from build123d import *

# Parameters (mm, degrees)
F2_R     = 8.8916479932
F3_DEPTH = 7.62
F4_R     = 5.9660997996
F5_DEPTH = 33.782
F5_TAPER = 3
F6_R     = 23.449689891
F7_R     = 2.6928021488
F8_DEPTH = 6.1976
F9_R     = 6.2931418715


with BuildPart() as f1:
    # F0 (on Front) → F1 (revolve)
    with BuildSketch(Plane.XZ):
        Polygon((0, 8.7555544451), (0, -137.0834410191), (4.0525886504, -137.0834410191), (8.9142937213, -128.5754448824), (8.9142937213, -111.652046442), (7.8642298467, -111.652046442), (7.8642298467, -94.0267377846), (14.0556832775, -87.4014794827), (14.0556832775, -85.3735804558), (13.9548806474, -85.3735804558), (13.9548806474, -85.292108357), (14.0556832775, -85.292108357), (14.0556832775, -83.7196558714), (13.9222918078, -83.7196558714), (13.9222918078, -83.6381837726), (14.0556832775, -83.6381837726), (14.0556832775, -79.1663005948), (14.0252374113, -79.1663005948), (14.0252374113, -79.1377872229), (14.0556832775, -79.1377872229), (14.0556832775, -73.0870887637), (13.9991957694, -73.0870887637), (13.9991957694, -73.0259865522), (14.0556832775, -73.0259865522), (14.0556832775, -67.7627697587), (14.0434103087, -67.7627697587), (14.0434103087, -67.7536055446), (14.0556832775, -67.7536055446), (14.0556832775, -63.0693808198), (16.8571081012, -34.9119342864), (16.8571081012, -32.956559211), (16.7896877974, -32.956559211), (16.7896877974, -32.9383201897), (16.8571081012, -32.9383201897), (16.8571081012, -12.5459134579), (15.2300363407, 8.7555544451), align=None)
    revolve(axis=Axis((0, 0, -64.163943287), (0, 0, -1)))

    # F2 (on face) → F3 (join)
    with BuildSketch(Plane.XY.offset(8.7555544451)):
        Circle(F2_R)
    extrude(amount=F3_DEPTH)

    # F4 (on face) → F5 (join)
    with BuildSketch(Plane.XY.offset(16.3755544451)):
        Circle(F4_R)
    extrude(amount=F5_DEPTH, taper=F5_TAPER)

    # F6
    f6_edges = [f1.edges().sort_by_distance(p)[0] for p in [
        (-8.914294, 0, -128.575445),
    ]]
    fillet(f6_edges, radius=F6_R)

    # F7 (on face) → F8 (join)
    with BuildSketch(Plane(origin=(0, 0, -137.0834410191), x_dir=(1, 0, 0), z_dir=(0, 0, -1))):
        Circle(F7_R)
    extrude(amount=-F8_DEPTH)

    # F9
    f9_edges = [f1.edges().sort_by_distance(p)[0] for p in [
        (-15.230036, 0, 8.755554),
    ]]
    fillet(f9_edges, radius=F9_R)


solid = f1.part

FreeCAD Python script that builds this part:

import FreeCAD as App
import Part
import Sketcher
from FreeCAD import Vector
Q = App.Units.Quantity


def edges_at(feature, points):
    """Names of the edges that pass closest to the given points."""
    edges = feature.Shape.Edges
    near = lambda p: min(range(len(edges)), key=lambda i: edges[i].distToShape(Part.Vertex(*p))[0])
    return sorted({f"Edge{near(p) + 1}" for p in points})

doc = App.newDocument("Part")
body = doc.addObject("PartDesign::Body", "Body")

# Sketch on XZ plane
sketch1 = body.newObject("Sketcher::SketchObject", "Sketch")
sketch1.AttachmentSupport = (doc.getObject("XZ_Plane"), [""])
sketch1.MapMode = "FlatFace"
sketch1.addGeometry([
    Part.LineSegment(Vector(0, 8.755554, 0), Vector(0, -137.083441, 0)),  # 0
    Part.LineSegment(Vector(0, -137.083441, 0), Vector(4.052589, -137.083441, 0)),  # 1
    Part.LineSegment(Vector(4.052589, -137.083441, 0), Vector(8.914294, -128.575445, 0)),  # 2
    Part.LineSegment(Vector(8.914294, -128.575445, 0), Vector(8.914294, -111.652046, 0)),  # 3
    Part.LineSegment(Vector(8.914294, -111.652046, 0), Vector(7.86423, -111.652046, 0)),  # 4
    Part.LineSegment(Vector(7.86423, -111.652046, 0), Vector(7.86423, -94.026738, 0)),  # 5
    Part.LineSegment(Vector(7.86423, -94.026738, 0), Vector(14.055683, -87.401479, 0)),  # 6
    Part.LineSegment(Vector(14.055683, -87.401479, 0), Vector(14.055683, -85.37358, 0)),  # 7
    Part.LineSegment(Vector(14.055683, -85.37358, 0), Vector(13.954881, -85.37358, 0)),  # 8
    Part.LineSegment(Vector(13.954881, -85.37358, 0), Vector(13.954881, -85.292108, 0)),  # 9
    Part.LineSegment(Vector(13.954881, -85.292108, 0), Vector(14.055683, -85.292108, 0)),  # 10
    Part.LineSegment(Vector(14.055683, -85.292108, 0), Vector(14.055683, -83.719656, 0)),  # 11
    Part.LineSegment(Vector(14.055683, -83.719656, 0), Vector(13.922292, -83.719656, 0)),  # 12
    Part.LineSegment(Vector(13.922292, -83.719656, 0), Vector(13.922292, -83.638184, 0)),  # 13
    Part.LineSegment(Vector(13.922292, -83.638184, 0), Vector(14.055683, -83.638184, 0)),  # 14
    Part.LineSegment(Vector(14.055683, -83.638184, 0), Vector(14.055683, -79.166301, 0)),  # 15
    Part.LineSegment(Vector(14.055683, -79.166301, 0), Vector(14.025237, -79.166301, 0)),  # 16
    Part.LineSegment(Vector(14.025237, -79.166301, 0), Vector(14.025237, -79.137787, 0)),  # 17
    Part.LineSegment(Vector(14.025237, -79.137787, 0), Vector(14.055683, -79.137787, 0)),  # 18
    Part.LineSegment(Vector(14.055683, -79.137787, 0), Vector(14.055683, -73.087089, 0)),  # 19
    Part.LineSegment(Vector(14.055683, -73.087089, 0), Vector(13.999196, -73.087089, 0)),  # 20
    Part.LineSegment(Vector(13.999196, -73.087089, 0), Vector(13.999196, -73.025987, 0)),  # 21
    Part.LineSegment(Vector(13.999196, -73.025987, 0), Vector(14.055683, -73.025987, 0)),  # 22
    Part.LineSegment(Vector(14.055683, -73.025987, 0), Vector(14.055683, -67.76277, 0)),  # 23
    Part.LineSegment(Vector(14.055683, -67.76277, 0), Vector(14.04341, -67.76277, 0)),  # 24
    Part.LineSegment(Vector(14.04341, -67.76277, 0), Vector(14.04341, -67.753606, 0)),  # 25
    Part.LineSegment(Vector(14.04341, -67.753606, 0), Vector(14.055683, -67.753606, 0)),  # 26
    Part.LineSegment(Vector(14.055683, -67.753606, 0), Vector(14.055683, -63.069381, 0)),  # 27
    Part.LineSegment(Vector(14.055683, -63.069381, 0), Vector(16.857108, -34.911934, 0)),  # 28
    Part.LineSegment(Vector(16.857108, -34.911934, 0), Vector(16.857108, -32.956559, 0)),  # 29
    Part.LineSegment(Vector(16.857108, -32.956559, 0), Vector(16.789688, -32.956559, 0)),  # 30
    Part.LineSegment(Vector(16.789688, -32.956559, 0), Vector(16.789688, -32.93832, 0)),  # 31
    Part.LineSegment(Vector(16.789688, -32.93832, 0), Vector(16.857108, -32.93832, 0)),  # 32
    Part.LineSegment(Vector(16.857108, -32.93832, 0), Vector(16.857108, -12.545913, 0)),  # 33
    Part.LineSegment(Vector(16.857108, -12.545913, 0), Vector(15.230036, 8.755554, 0)),  # 34
    Part.LineSegment(Vector(15.230036, 8.755554, 0), Vector(0, 8.755554, 0)),  # 35
], False)
sketch1.addConstraint([
    Sketcher.Constraint("Coincident", 0, 2, 1, 1),
    Sketcher.Constraint("Coincident", 1, 2, 2, 1),
    Sketcher.Constraint("Coincident", 2, 2, 3, 1),
    Sketcher.Constraint("Coincident", 3, 2, 4, 1),
    Sketcher.Constraint("Coincident", 4, 2, 5, 1),
    Sketcher.Constraint("Coincident", 5, 2, 6, 1),
    Sketcher.Constraint("Coincident", 6, 2, 7, 1),
    Sketcher.Constraint("Coincident", 7, 2, 8, 1),
    Sketcher.Constraint("Coincident", 8, 2, 9, 1),
    Sketcher.Constraint("Coincident", 9, 2, 10, 1),
    Sketcher.Constraint("Coincident", 10, 2, 11, 1),
    Sketcher.Constraint("Coincident", 11, 2, 12, 1),
    Sketcher.Constraint("Coincident", 12, 2, 13, 1),
    Sketcher.Constraint("Coincident", 13, 2, 14, 1),
    Sketcher.Constraint("Coincident", 14, 2, 15, 1),
    Sketcher.Constraint("Coincident", 15, 2, 16, 1),
    Sketcher.Constraint("Coincident", 16, 2, 17, 1),
    Sketcher.Constraint("Coincident", 17, 2, 18, 1),
    Sketcher.Constraint("Coincident", 18, 2, 19, 1),
    Sketcher.Constraint("Coincident", 19, 2, 20, 1),
    Sketcher.Constraint("Coincident", 20, 2, 21, 1),
    Sketcher.Constraint("Coincident", 21, 2, 22, 1),
    Sketcher.Constraint("Coincident", 22, 2, 23, 1),
    Sketcher.Constraint("Coincident", 23, 2, 24, 1),
    Sketcher.Constraint("Coincident", 24, 2, 25, 1),
    Sketcher.Constraint("Coincident", 25, 2, 26, 1),
    Sketcher.Constraint("Coincident", 26, 2, 27, 1),
    Sketcher.Constraint("Coincident", 27, 2, 28, 1),
    Sketcher.Constraint("Coincident", 28, 2, 29, 1),
    Sketcher.Constraint("Coincident", 29, 2, 30, 1),
    Sketcher.Constraint("Coincident", 30, 2, 31, 1),
    Sketcher.Constraint("Coincident", 31, 2, 32, 1),
    Sketcher.Constraint("Coincident", 32, 2, 33, 1),
    Sketcher.Constraint("Coincident", 33, 2, 34, 1),
    Sketcher.Constraint("Coincident", 34, 2, 35, 1),
    Sketcher.Constraint("Coincident", 35, 2, 0, 1),
    Sketcher.Constraint("Vertical", 0),
    Sketcher.Constraint("Horizontal", 1),
    Sketcher.Constraint("Vertical", 3),
    Sketcher.Constraint("Horizontal", 4),
    Sketcher.Constraint("Vertical", 5),
    Sketcher.Constraint("Vertical", 7),
    Sketcher.Constraint("Horizontal", 8),
    Sketcher.Constraint("Vertical", 9),
    Sketcher.Constraint("Horizontal", 10),
    Sketcher.Constraint("Vertical", 11),
    Sketcher.Constraint("Horizontal", 12),
    Sketcher.Constraint("Vertical", 13),
    Sketcher.Constraint("Horizontal", 14),
    Sketcher.Constraint("Vertical", 15),
    Sketcher.Constraint("Horizontal", 16),
    Sketcher.Constraint("Vertical", 17),
    Sketcher.Constraint("Horizontal", 18),
    Sketcher.Constraint("Vertical", 19),
    Sketcher.Constraint("Horizontal", 20),
    Sketcher.Constraint("Vertical", 21),
    Sketcher.Constraint("Horizontal", 22),
    Sketcher.Constraint("Vertical", 23),
    Sketcher.Constraint("Horizontal", 24),
    Sketcher.Constraint("Vertical", 25),
    Sketcher.Constraint("Horizontal", 26),
    Sketcher.Constraint("Vertical", 27),
    Sketcher.Constraint("Vertical", 29),
    Sketcher.Constraint("Horizontal", 30),
    Sketcher.Constraint("Vertical", 31),
    Sketcher.Constraint("Horizontal", 32),
    Sketcher.Constraint("Vertical", 33),
    Sketcher.Constraint("Horizontal", 35),
    Sketcher.Constraint("PointOnObject", 0, 2, -2),
    Sketcher.Constraint("Vertical", 7, 2, 10, 2),
    Sketcher.Constraint("Vertical", 11, 2, 14, 2),
    Sketcher.Constraint("Vertical", 15, 2, 18, 2),
    Sketcher.Constraint("Vertical", 19, 2, 22, 2),
    Sketcher.Constraint("Vertical", 23, 2, 26, 2),
    Sketcher.Constraint("Vertical", 29, 2, 32, 2),
    Sketcher.Constraint("Equal", 9, 13),
    Sketcher.Constraint("DistanceY", 3, 1, 3, 2, 16.923398),
    Sketcher.Constraint("DistanceY", 7, 1, 7, 2, 2.027899),
    Sketcher.Constraint("DistanceY", 19, 1, 19, 2, 6.050698),
    Sketcher.Constraint("DistanceX", 1, 1, 1, 2, 4.052589),
    Sketcher.Constraint("DistanceX", 12, 2, 12, 1, 0.133391),
    Sketcher.Constraint("DistanceX", 30, 2, 30, 1, 0.06742),
    Sketcher.Constraint("DistanceY", 5, 1, 5, 2, 17.625309),
    Sketcher.Constraint("DistanceY", 31, 1, 31, 2, 0.018239),
    Sketcher.Constraint("DistanceY", 15, 2, -1, 1, 79.166301),
    Sketcher.Constraint("DistanceY", 17, 2, 21, 2, 6.111801),
    Sketcher.Constraint("Distance", 2, 9.79909),
    Sketcher.Constraint("DistanceX", 4, 2, 4, 1, 1.050064),
    Sketcher.Constraint("DistanceX", 8, 2, 8, 1, 0.100803),
    Sketcher.Constraint("DistanceX", 16, 2, 16, 1, 0.030446),
    Sketcher.Constraint("DistanceX", 20, 2, 20, 1, 0.056488),
    Sketcher.Constraint("DistanceX", 24, 2, 24, 1, 0.012273),
    Sketcher.Constraint("DistanceX", 35, 2, 35, 1, 15.230036),
    Sketcher.Constraint("DistanceY", 0, 2, 0, 1, 145.838995),
    Sketcher.Constraint("DistanceY", 9, 1, 9, 2, 0.081472),
    Sketcher.Constraint("DistanceY", 11, 1, 11, 2, 1.572452),
    Sketcher.Constraint("DistanceY", 15, 1, 15, 2, 4.471883),
    Sketcher.Constraint("DistanceY", 17, 1, 17, 2, 0.028513),
    Sketcher.Constraint("DistanceY", 23, 1, 23, 2, 5.263217),
    Sketcher.Constraint("DistanceY", 25, 1, 25, 2, 0.009164),
    Sketcher.Constraint("DistanceY", 27, 1, 27, 2, 4.684225),
    Sketcher.Constraint("DistanceY", 29, 1, 29, 2, 1.955375),
    Sketcher.Constraint("DistanceY", 33, 1, 33, 2, 20.392407),
    Sketcher.Constraint("DistanceY", 0, 2, -1, 1, 137.083441),
    Sketcher.Constraint("DistanceX", -1, 1, 4, 2, 7.86423),
    Sketcher.Constraint("DistanceX", -1, 1, 8, 2, 13.954881),
    Sketcher.Constraint("DistanceX", -1, 1, 28, 2, 16.857108),
    Sketcher.Constraint("DistanceY", 29, 2, -1, 1, 32.956559),
])
revolution = body.newObject("PartDesign::Revolution", "Revolution")
revolution.Profile = sketch1
revolution.ReferenceAxis = (sketch1, ["V_Axis"])
revolution.Angle = 360

# Sketch on XY plane
sketch2 = body.newObject("Sketcher::SketchObject", "Sketch001")
sketch2.AttachmentSupport = (doc.getObject("XY_Plane"), [""])
sketch2.MapMode = "FlatFace"
sketch2.AttachmentOffset = App.Placement(Vector(0, 0, 8.755554), App.Rotation())
sketch2.addGeometry(Part.Circle(Vector(0, 0, 0), Vector(0, 0, 1), 8.891648), False)
sketch2.addConstraint([
    Sketcher.Constraint("Coincident", 0, 3, -1, 1),
    Sketcher.Constraint("Diameter", 0, 17.783296),
])
pad1 = body.newObject("PartDesign::Pad", "Pad")
pad1.Profile = sketch2
pad1.Length = Q("0.3 in")

# Sketch on XY plane
sketch3 = body.newObject("Sketcher::SketchObject", "Sketch002")
sketch3.AttachmentSupport = (doc.getObject("XY_Plane"), [""])
sketch3.MapMode = "FlatFace"
sketch3.AttachmentOffset = App.Placement(Vector(0, 0, 16.375554), App.Rotation())
sketch3.addGeometry(Part.Circle(Vector(0, 0, 0), Vector(0, 0, 1), 5.9661), False)
sketch3.addConstraint([
    Sketcher.Constraint("Coincident", 0, 3, -1, 1),
    Sketcher.Constraint("Diameter", 0, 11.9322),
])
pad2 = body.newObject("PartDesign::Pad", "Pad001")
pad2.Profile = sketch3
pad2.Length = Q("1.33 in")
pad2.TaperAngle = -3
doc.recompute()

fillet = body.newObject("PartDesign::Fillet", "Fillet")
fillet.Base = (pad2, edges_at(pad2, [(-8.914, 0, -128.575)]))
fillet.Radius = 23.44969

# Sketch on XY plane
sketch4 = body.newObject("Sketcher::SketchObject", "Sketch003")
sketch4.AttachmentSupport = (doc.getObject("XY_Plane"), [""])
sketch4.MapMode = "FlatFace"
sketch4.AttachmentOffset = App.Placement(Vector(0, 0, -137.083441), App.Rotation())
sketch4.addGeometry(Part.Circle(Vector(0, 0, 0), Vector(0, 0, 1), 2.692802), False)
sketch4.addConstraint([
    Sketcher.Constraint("Coincident", 0, 3, -1, 1),
    Sketcher.Constraint("Diameter", 0, 5.385604),
])
pad3 = body.newObject("PartDesign::Pad", "Pad002")
pad3.Profile = sketch4
pad3.Length = Q("0.244 in")
doc.recompute()

fillet2 = body.newObject("PartDesign::Fillet", "Fillet001")
fillet2.Base = (pad3, edges_at(pad3, [(-15.23, 0, 8.756)]))
fillet2.Radius = 6.293142

doc.recompute()
